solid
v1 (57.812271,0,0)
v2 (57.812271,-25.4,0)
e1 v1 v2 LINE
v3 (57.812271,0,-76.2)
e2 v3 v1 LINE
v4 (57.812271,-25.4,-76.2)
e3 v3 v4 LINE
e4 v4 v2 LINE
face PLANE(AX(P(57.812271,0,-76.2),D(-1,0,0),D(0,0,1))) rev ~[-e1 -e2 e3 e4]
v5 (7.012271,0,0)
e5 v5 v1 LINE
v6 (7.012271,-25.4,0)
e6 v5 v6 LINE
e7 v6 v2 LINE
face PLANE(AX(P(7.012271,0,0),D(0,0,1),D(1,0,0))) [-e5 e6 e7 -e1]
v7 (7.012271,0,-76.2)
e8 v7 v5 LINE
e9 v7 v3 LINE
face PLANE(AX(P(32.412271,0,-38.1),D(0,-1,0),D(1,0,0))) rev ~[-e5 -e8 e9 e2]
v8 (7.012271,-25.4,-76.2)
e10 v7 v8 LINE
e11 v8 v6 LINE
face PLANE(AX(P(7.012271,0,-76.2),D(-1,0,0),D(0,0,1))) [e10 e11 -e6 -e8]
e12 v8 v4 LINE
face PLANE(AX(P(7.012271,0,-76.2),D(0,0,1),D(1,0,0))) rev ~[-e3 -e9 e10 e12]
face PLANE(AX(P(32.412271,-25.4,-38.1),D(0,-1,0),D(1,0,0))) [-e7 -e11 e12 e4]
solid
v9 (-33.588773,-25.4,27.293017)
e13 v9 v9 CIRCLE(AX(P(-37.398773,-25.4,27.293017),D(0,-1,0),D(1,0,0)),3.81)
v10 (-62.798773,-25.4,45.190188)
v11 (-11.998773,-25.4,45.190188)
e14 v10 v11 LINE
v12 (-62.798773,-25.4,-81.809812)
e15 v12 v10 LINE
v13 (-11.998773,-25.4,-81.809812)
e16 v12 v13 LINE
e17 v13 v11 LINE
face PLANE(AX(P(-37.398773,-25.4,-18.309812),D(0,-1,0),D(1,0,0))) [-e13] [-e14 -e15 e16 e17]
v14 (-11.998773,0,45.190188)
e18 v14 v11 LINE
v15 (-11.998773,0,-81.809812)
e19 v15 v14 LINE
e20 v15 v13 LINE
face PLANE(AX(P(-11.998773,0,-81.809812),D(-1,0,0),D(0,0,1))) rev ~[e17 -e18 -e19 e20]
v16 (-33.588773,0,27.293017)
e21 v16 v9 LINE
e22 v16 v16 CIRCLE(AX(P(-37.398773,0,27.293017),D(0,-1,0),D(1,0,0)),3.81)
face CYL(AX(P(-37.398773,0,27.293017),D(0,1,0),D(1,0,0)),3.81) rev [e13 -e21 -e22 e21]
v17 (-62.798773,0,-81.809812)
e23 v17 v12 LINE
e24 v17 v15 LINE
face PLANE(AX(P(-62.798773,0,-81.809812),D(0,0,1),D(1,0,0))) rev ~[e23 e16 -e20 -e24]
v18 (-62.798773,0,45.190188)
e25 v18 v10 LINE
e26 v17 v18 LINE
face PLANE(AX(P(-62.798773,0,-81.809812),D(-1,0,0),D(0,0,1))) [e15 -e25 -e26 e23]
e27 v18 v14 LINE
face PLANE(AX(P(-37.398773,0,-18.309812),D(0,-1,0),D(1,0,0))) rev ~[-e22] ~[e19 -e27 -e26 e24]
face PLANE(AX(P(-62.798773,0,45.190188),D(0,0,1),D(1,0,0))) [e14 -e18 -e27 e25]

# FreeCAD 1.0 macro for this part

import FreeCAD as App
import Part
import Sketcher
from FreeCAD import Vector
Q = App.Units.Quantity

doc = App.newDocument("Part")
body = doc.addObject("PartDesign::Body", "Body")
body.AllowCompound = True

# Sketch on XZ plane
sketch1 = body.newObject("Sketcher::SketchObject", "Sketch")
sketch1.AttachmentSupport = (doc.getObject("XZ_Plane"), [""])
sketch1.MapMode = "FlatFace"
sketch1.addGeometry(Part.LineSegment(Vector(-62.8, 45.2, 0), Vector(-62.8, -81.8, 0)), False)
sketch1.addGeometry(Part.LineSegment(Vector(-62.8, -81.8, 0), Vector(-12, -81.8, 0)), False)
sketch1.addGeometry(Part.LineSegment(Vector(-12, -81.8, 0), Vector(-12, 45.2, 0)), False)
sketch1.addGeometry(Part.LineSegment(Vector(-12, 45.2, 0), Vector(-62.8, 45.2, 0)), False)
sketch1.addGeometry(Part.Circle(Vector(-37.4, 27.3, 0), Vector(0, 0, 1), 3.8), False)
sketch1.addGeometry(Part.LineSegment(Vector(7, 0, 0), Vector(7, -76.2, 0)), False)
sketch1.addGeometry(Part.LineSegment(Vector(7, -76.2, 0), Vector(57.8, -76.2, 0)), False)
sketch1.addGeometry(Part.LineSegment(Vector(57.8, -76.2, 0), Vector(57.8, 0, 0)), False)
sketch1.addGeometry(Part.LineSegment(Vector(57.8, 0, 0), Vector(7, 0, 0)), False)
sketch1.addConstraint(Sketcher.Constraint("Coincident", 0, 2, 1, 1))
sketch1.addConstraint(Sketcher.Constraint("Coincident", 1, 2, 2, 1))
sketch1.addConstraint(Sketcher.Constraint("Coincident", 2, 2, 3, 1))
sketch1.addConstraint(Sketcher.Constraint("Coincident", 3, 2, 0, 1))
sketch1.addConstraint(Sketcher.Constraint("Coincident", 5, 2, 6, 1))
sketch1.addConstraint(Sketcher.Constraint("Coincident", 6, 2, 7, 1))
sketch1.addConstraint(Sketcher.Constraint("Coincident", 7, 2, 8, 1))
sketch1.addConstraint(Sketcher.Constraint("Coincident", 8, 2, 5, 1))
sketch1.addConstraint(Sketcher.Constraint("Vertical", 0))
sketch1.addConstraint(Sketcher.Constraint("Horizontal", 1))
sketch1.addConstraint(Sketcher.Constraint("Vertical", 2))
sketch1.addConstraint(Sketcher.Constraint("Horizontal", 3))
sketch1.addConstraint(Sketcher.Constraint("Vertical", 5))
sketch1.addConstraint(Sketcher.Constraint("Horizontal", 6))
sketch1.addConstraint(Sketcher.Constraint("Vertical", 7))
sketch1.addConstraint(Sketcher.Constraint("Horizontal", 8))
sketch1.addConstraint(Sketcher.Constraint("PointOnObject", 7, 2, -1))
sketch1.addConstraint(Sketcher.Constraint("Equal", 3, 6))
sketch1.addConstraint(Sketcher.Constraint("Diameter", 4, Q("0.3 in")))
sketch1.addConstraint(Sketcher.Constraint("DistanceX", 1, 1, 1, 2, Q("2 in")))
sketch1.addConstraint(Sketcher.Constraint("DistanceY", 0, 2, 0, 1, Q("5 in")))
sketch1.addConstraint(Sketcher.Constraint("DistanceY", 5, 2, 5, 1, Q("3 in")))
sketch1.addConstraint(Sketcher.Constraint("DistanceX", 0, 2, 4, 3, Q("1 in")))
sketch1.addConstraint(Sketcher.Constraint("DistanceY", 0, 2, -1, 1, Q("81.809812 mm")))
sketch1.addConstraint(Sketcher.Constraint("DistanceX", -1, 1, 5, 2, Q("7.012271 mm")))
sketch1.addConstraint(Sketcher.Constraint("DistanceY", 0, 2, 4, 3, Q("109.102829 mm")))
sketch1.addConstraint(Sketcher.Constraint("DistanceX", 4, 3, -1, 1, Q("37.398773 mm")))
pad1 = body.newObject("PartDesign::Pad", "Pad")
pad1.Profile = sketch1
pad1.Length = Q("1 in")

doc.recompute()
